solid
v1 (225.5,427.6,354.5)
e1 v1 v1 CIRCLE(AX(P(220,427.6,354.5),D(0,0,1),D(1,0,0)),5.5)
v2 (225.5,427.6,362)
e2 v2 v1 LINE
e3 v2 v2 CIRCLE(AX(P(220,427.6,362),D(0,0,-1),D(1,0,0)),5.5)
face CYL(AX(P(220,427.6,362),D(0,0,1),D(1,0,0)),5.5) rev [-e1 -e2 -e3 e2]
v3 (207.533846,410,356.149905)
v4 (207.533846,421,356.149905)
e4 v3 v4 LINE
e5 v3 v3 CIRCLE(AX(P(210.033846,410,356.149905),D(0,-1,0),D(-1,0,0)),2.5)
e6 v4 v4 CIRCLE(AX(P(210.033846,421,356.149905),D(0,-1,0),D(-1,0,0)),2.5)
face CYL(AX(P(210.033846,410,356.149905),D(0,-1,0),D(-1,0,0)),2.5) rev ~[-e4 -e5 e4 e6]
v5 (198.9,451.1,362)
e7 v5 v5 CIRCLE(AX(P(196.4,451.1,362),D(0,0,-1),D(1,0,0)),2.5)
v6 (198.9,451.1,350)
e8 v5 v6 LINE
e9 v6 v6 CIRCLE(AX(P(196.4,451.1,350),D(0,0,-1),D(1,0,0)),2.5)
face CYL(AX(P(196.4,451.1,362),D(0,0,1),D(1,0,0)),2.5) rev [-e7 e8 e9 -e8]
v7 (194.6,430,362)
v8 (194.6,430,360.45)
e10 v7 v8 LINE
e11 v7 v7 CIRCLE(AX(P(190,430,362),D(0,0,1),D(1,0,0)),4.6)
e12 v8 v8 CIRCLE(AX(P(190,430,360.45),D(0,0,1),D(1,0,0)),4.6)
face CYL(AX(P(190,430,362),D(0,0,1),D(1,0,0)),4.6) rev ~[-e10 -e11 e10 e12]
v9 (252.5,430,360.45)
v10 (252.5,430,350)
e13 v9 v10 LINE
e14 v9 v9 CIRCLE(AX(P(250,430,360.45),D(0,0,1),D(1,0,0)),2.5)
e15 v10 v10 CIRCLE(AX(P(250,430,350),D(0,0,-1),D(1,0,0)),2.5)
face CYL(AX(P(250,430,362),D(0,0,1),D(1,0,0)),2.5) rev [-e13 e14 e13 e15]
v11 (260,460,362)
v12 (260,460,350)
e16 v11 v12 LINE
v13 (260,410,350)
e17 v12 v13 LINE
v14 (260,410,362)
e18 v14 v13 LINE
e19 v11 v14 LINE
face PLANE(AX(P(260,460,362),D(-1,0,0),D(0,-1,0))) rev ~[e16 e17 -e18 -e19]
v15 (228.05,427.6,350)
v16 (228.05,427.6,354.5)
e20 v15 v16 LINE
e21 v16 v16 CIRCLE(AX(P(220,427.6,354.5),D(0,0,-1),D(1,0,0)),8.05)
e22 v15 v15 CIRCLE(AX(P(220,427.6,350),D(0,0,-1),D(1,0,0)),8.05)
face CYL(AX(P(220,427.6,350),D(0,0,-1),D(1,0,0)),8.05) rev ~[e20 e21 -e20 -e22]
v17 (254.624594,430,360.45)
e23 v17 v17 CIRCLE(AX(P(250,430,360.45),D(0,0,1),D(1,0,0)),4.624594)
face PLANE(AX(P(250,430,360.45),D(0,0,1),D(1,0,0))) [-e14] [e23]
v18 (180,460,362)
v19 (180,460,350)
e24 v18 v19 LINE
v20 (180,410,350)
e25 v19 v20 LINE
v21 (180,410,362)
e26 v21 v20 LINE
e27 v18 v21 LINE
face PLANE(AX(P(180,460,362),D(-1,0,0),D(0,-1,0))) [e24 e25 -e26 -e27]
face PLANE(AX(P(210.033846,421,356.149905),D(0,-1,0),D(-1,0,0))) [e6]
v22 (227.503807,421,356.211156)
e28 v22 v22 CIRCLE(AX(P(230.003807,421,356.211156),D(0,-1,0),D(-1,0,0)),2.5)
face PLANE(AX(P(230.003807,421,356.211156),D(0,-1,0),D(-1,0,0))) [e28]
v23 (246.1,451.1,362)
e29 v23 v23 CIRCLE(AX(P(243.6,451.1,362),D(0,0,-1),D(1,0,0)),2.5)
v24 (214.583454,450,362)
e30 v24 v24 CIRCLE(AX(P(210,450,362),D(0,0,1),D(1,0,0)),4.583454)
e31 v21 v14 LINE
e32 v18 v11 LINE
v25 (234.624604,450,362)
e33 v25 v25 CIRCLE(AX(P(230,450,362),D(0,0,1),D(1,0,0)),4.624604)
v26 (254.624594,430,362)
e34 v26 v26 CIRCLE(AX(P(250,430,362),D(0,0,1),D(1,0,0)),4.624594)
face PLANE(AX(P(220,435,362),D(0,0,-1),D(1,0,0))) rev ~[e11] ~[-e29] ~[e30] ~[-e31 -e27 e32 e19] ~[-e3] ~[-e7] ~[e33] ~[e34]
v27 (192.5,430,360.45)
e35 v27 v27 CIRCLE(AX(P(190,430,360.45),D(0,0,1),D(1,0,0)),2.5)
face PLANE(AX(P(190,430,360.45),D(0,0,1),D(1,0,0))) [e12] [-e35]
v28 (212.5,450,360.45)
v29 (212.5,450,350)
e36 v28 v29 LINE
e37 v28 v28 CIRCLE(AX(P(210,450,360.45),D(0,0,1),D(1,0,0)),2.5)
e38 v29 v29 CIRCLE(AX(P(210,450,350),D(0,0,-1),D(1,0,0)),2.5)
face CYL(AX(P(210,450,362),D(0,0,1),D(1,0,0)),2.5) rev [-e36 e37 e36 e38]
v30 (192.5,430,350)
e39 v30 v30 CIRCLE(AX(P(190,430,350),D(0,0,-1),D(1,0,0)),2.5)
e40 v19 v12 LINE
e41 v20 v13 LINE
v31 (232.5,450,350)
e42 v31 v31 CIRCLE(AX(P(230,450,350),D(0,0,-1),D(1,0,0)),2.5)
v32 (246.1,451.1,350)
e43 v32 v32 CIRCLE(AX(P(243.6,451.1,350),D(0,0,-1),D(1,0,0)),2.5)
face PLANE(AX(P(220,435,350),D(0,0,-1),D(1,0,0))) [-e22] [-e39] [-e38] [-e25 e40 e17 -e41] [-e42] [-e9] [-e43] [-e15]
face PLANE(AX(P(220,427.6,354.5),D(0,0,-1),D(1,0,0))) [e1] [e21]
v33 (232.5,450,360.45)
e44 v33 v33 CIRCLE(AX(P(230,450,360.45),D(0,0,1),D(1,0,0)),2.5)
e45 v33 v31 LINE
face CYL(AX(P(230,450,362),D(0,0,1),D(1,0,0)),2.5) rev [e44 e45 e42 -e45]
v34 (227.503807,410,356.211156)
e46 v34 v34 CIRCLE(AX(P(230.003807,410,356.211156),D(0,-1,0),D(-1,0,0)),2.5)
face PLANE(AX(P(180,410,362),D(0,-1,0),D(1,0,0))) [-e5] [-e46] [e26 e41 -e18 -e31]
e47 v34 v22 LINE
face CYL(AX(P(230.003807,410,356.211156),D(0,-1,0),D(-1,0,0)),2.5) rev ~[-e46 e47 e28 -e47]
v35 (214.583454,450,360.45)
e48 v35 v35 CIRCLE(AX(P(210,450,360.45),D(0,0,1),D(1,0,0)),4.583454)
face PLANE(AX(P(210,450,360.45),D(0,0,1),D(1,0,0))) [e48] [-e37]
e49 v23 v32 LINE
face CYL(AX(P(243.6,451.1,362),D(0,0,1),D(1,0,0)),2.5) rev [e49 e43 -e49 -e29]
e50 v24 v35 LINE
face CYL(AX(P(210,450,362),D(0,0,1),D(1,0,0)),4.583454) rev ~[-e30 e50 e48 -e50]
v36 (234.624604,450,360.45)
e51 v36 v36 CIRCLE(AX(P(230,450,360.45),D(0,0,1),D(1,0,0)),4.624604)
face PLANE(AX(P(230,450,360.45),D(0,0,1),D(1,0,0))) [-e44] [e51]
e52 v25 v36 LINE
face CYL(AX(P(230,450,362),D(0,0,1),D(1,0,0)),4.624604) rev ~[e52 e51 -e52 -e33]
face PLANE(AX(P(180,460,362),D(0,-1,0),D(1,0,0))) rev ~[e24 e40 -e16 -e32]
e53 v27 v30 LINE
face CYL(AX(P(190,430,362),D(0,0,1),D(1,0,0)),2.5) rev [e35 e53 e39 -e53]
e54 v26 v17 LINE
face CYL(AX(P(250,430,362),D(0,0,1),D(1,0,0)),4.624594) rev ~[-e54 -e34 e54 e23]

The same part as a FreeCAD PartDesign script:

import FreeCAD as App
import Part
import Sketcher
from FreeCAD import Vector

doc = App.newDocument("Part")
body = doc.addObject("PartDesign::Body", "Body")

sketch1 = body.newObject("Sketcher::SketchObject", "Sketch")
sketch1.AttachmentSupport = (doc.getObject("XY_Plane"), [""])
sketch1.MapMode = "FlatFace"
sketch1.AttachmentOffset = App.Placement(Vector(0, 0, 362), App.Rotation())
sketch1.addGeometry([
    Part.LineSegment(Vector(180, 410, 0), Vector(180, 460, 0)),
    Part.LineSegment(Vector(180, 460, 0), Vector(260, 460, 0)),
    Part.LineSegment(Vector(260, 460, 0), Vector(260, 410, 0)),
    Part.LineSegment(Vector(260, 410, 0), Vector(180, 410, 0)),
    Part.Circle(Vector(196.4, 451.1, 0), Vector(0, 0, 1), 2.5),
    Part.Circle(Vector(210, 450, 0), Vector(0, 0, 1), 2.5),
    Part.Circle(Vector(230, 450, 0), Vector(0, 0, 1), 2.5),
    Part.Circle(Vector(243.6, 451.1, 0), Vector(0, 0, 1), 2.5),
    Part.Circle(Vector(190, 430, 0), Vector(0, 0, 1), 2.5),
    Part.Circle(Vector(250, 430, 0), Vector(0, 0, 1), 2.5),
    Part.Circle(Vector(220, 427.6, 0), Vector(0, 0, 1), 5.5),
], False)
sketch1.addConstraint([
    Sketcher.Constraint("Coincident", 0, 2, 1, 1),
    Sketcher.Constraint("Coincident", 1, 2, 2, 1),
    Sketcher.Constraint("Coincident", 2, 2, 3, 1),
    Sketcher.Constraint("Coincident", 3, 2, 0, 1),
    Sketcher.Constraint("Vertical", 0),
    Sketcher.Constraint("Horizontal", 1),
    Sketcher.Constraint("Vertical", 2),
    Sketcher.Constraint("Horizontal", 3),
    Sketcher.Constraint("Equal", 4, 5),
    Sketcher.Constraint("Equal", 5, 6),
    Sketcher.Constraint("Equal", 6, 7),
    Sketcher.Constraint("Equal", 7, 8),
    Sketcher.Constraint("Equal", 8, 9),
    Sketcher.Constraint("Horizontal", 5, 3, 6, 3),
    Sketcher.Constraint("Horizontal", 4, 3, 7, 3),
    Sketcher.Constraint("Horizontal", 8, 3, 9, 3),
    Sketcher.Constraint("Diameter", 4, 5.0),
    Sketcher.Constraint("Diameter", 10, 11.0),
    Sketcher.Constraint("DistanceX", 1, 1, 1, 2, 80.0),
    Sketcher.Constraint("DistanceY", 0, 1, 0, 2, 50.0),
    Sketcher.Constraint("DistanceX", -1, 1, 5, 3, 210.0),
    Sketcher.Constraint("DistanceY", -1, 1, 5, 3, 450.0),
    Sketcher.Constraint("DistanceX", -1, 1, 6, 3, 230.0),
    Sketcher.Constraint("DistanceX", -1, 1, 8, 3, 190.0),
    Sketcher.Constraint("DistanceY", -1, 1, 8, 3, 430.0),
    Sketcher.Constraint("DistanceX", -1, 1, 9, 3, 250.0),
    Sketcher.Constraint("DistanceX", -1, 1, 10, 3, 220.0),
    Sketcher.Constraint("DistanceX", -1, 1, 0, 2, 180.0),
    Sketcher.Constraint("DistanceY", -1, 1, 0, 2, 460.0),
    Sketcher.Constraint("DistanceX", -1, 1, 4, 3, 196.4),
    Sketcher.Constraint("DistanceY", -1, 1, 4, 3, 451.1),
    Sketcher.Constraint("DistanceX", -1, 1, 7, 3, 243.6),
    Sketcher.Constraint("DistanceY", -1, 1, 10, 3, 427.6),
])
pad1 = body.newObject("PartDesign::Pad", "Pad")
pad1.Profile = sketch1
pad1.Length = 12
pad1.Reversed = True

sketch2 = body.newObject("Sketcher::SketchObject", "Sketch001")
sketch2.AttachmentSupport = (doc.getObject("XZ_Plane"), [""])
sketch2.MapMode = "FlatFace"
sketch2.AttachmentOffset = App.Placement(Vector(0, 0, -410), App.Rotation())
sketch2.addGeometry([
    Part.Circle(Vector(210, 356.1, 0), Vector(0, 0, 1), 2.5),
    Part.Circle(Vector(230, 356.2, 0), Vector(0, 0, 1), 2.5),
], False)
sketch2.addConstraint([
    Sketcher.Constraint("Equal", 0, 1),
    Sketcher.Constraint("Diameter", 0, 5.0),
    Sketcher.Constraint("DistanceX", 0, 3, 1, 3, 19.969961),
    Sketcher.Constraint("DistanceY", 0, 3, 1, 3, 0.061251),
    Sketcher.Constraint("DistanceX", -1, 1, 0, 3, 210.033846),
    Sketcher.Constraint("DistanceY", -1, 1, 0, 3, 356.149905),
])
pocket1 = body.newObject("PartDesign::Pocket", "Pocket")
pocket1.Profile = sketch2
pocket1.Length = 11

sketch3 = body.newObject("Sketcher::SketchObject", "Sketch002")
sketch3.AttachmentSupport = (doc.getObject("XY_Plane"), [""])
sketch3.MapMode = "FlatFace"
sketch3.AttachmentOffset = App.Placement(Vector(0, 0, 350), App.Rotation())
sketch3.addGeometry(Part.Circle(Vector(220, 428, 0), Vector(0, 0, 1), 8), False)
sketch3.addConstraint([
    Sketcher.Constraint("Diameter", 0, 16.1),
    Sketcher.Constraint("DistanceX", -1, 1, 0, 3, 220.0),
    Sketcher.Constraint("DistanceY", -1, 1, 0, 3, 427.6),
])
pocket2 = body.newObject("PartDesign::Pocket", "Pocket001")
pocket2.Profile = sketch3
pocket2.Length = 4.5
pocket2.Reversed = True

sketch4 = body.newObject("Sketcher::SketchObject", "Sketch003")
sketch4.AttachmentSupport = (doc.getObject("XY_Plane"), [""])
sketch4.MapMode = "FlatFace"
sketch4.AttachmentOffset = App.Placement(Vector(0, 0, 362), App.Rotation())
sketch4.addGeometry([
    Part.Circle(Vector(190, 430, 0), Vector(0, 0, 1), 4.6),
    Part.Circle(Vector(250, 430, 0), Vector(0, 0, 1), 4.6),
    Part.Circle(Vector(210, 450, 0), Vector(0, 0, 1), 4.6),
    Part.Circle(Vector(230, 450, 0), Vector(0, 0, 1), 4.6),
], False)
sketch4.addConstraint([
    Sketcher.Constraint("Horizontal", 0, 3, 1, 3),
    Sketcher.Constraint("Horizontal", 2, 3, 3, 3),
    Sketcher.Constraint("Diameter", 0, 9.2),
    Sketcher.Constraint("DistanceX", -1, 1, 0, 3, 190.0),
    Sketcher.Constraint("DistanceY", -1, 1, 0, 3, 430.0),
    Sketcher.Constraint("DistanceX", -1, 1, 1, 3, 250.0),
    Sketcher.Constraint("DistanceX", -1, 1, 2, 3, 210.0),
    Sketcher.Constraint("DistanceY", -1, 1, 2, 3, 450.0),
    Sketcher.Constraint("DistanceX", -1, 1, 3, 3, 230.0),
    Sketcher.Constraint("Diameter", 1, 9.249188),
    Sketcher.Constraint("Diameter", 2, 9.166908),
    Sketcher.Constraint("Diameter", 3, 9.249208),
])
pocket3 = body.newObject("PartDesign::Pocket", "Pocket002")
pocket3.Profile = sketch4
pocket3.Length = 1.55

doc.recompute()
